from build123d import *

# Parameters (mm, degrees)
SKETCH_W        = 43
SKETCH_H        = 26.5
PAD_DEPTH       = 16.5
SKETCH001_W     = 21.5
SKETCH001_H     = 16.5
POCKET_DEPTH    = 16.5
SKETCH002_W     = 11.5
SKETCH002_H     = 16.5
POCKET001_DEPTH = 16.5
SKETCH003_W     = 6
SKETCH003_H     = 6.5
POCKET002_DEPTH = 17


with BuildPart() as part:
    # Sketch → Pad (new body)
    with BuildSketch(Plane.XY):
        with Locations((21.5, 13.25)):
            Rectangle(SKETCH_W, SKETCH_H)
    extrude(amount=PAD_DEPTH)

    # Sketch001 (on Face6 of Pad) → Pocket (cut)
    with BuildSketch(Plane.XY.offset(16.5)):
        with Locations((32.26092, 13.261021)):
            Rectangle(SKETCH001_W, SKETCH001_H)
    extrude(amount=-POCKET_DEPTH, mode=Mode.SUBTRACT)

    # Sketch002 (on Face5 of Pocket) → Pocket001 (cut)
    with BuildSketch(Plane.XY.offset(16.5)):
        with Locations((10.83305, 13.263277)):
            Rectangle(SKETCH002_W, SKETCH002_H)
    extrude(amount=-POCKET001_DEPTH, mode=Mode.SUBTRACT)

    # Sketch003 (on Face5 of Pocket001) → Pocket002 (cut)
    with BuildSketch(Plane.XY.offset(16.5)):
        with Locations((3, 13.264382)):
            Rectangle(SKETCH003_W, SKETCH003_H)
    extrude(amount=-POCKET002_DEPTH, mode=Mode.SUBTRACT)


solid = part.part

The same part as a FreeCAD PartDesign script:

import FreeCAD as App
import Part
import Sketcher

V = App.Vector

doc = App.newDocument("Part")
params = doc.addObject("Spreadsheet::Sheet", "Params")
for row, (alias, value) in enumerate([
    ("sketch1_width", "43 mm"),
    ("sketch1_height", "26.5 mm"),
    ("pad1_length", "16.5 mm"),
    ("sketch2_width", "21.5 mm"),
    ("sketch2_height", "16.5 mm"),
    ("pocket1_length", "16.5 mm"),
    ("sketch3_width", "11.5 mm"),
    ("sketch3_height", "16.5 mm"),
    ("pocket2_length", "16.5 mm"),
    ("sketch4_width", "6 mm"),
    ("sketch4_height", "6.5 mm"),
    ("pocket3_length", "17 mm"),
], start=1):
    params.set(f"A{row}", alias)
    params.set(f"B{row}", "=" + value)
    params.setAlias(f"B{row}", alias)

body = doc.addObject("PartDesign::Body", "Body")

# Sketch on XY plane
sketch1 = doc.addObject("Sketcher::SketchObject", "Sketch")
body.addObject(sketch1)
sketch1.AttachmentSupport = (doc.XY_Plane, [""])
sketch1.MapMode = "FlatFace"
sketch1.addGeometry(Part.LineSegment(V(0, 26.5, 0), V(0, 0, 0)), False)
sketch1.addGeometry(Part.LineSegment(V(0, 0, 0), V(43, 0, 0)), False)
sketch1.addGeometry(Part.LineSegment(V(43, 0, 0), V(43, 26.5, 0)), False)
sketch1.addGeometry(Part.LineSegment(V(43, 26.5, 0), V(0, 26.5, 0)), False)
sketch1.addConstraint(Sketcher.Constraint("Coincident", 0, 2, 1, 1))
sketch1.addConstraint(Sketcher.Constraint("Coincident", 1, 2, 2, 1))
sketch1.addConstraint(Sketcher.Constraint("Coincident", 2, 2, 3, 1))
sketch1.addConstraint(Sketcher.Constraint("Coincident", 3, 2, 0, 1))
sketch1.addConstraint(Sketcher.Constraint("Vertical", 0))
sketch1.addConstraint(Sketcher.Constraint("Horizontal", 1))
sketch1.addConstraint(Sketcher.Constraint("Vertical", 2))
sketch1.addConstraint(Sketcher.Constraint("Horizontal", 3))
sketch1.addConstraint(Sketcher.Constraint("Coincident", 0, 2, -1, 1))
sketch1.addConstraint(Sketcher.Constraint("DistanceX", 1, 1, 1, 2, 43.0))
sketch1.addConstraint(Sketcher.Constraint("DistanceY", 0, 2, 0, 1, 26.5))
sketch1.setExpression("Constraints[9]", "Params.sketch1_width")
sketch1.setExpression("Constraints[10]", "Params.sketch1_height")
pad1 = doc.addObject("PartDesign::Pad", "Pad")
body.addObject(pad1)
pad1.Profile = sketch1
pad1.setExpression("Length", "Params.pad1_length")

# Sketch on XY plane
sketch2 = doc.addObject("Sketcher::SketchObject", "Sketch001")
body.addObject(sketch2)
sketch2.AttachmentSupport = (doc.XY_Plane, [""])
sketch2.MapMode = "FlatFace"
sketch2.AttachmentOffset = App.Placement(V(0, 0, 16.5), App.Rotation())
sketch2.addGeometry(Part.LineSegment(V(21.51092, 21.511021, 0), V(21.51092, 5.011021, 0)), False)
sketch2.addGeometry(Part.LineSegment(V(21.51092, 5.011021, 0), V(43.01092, 5.011021, 0)), False)
sketch2.addGeometry(Part.LineSegment(V(43.01092, 5.011021, 0), V(43.01092, 21.511021, 0)), False)
sketch2.addGeometry(Part.LineSegment(V(43.01092, 21.511021, 0), V(21.51092, 21.511021, 0)), False)
sketch2.addConstraint(Sketcher.Constraint("Coincident", 0, 2, 1, 1))
sketch2.addConstraint(Sketcher.Constraint("Coincident", 1, 2, 2, 1))
sketch2.addConstraint(Sketcher.Constraint("Coincident", 2, 2, 3, 1))
sketch2.addConstraint(Sketcher.Constraint("Coincident", 3, 2, 0, 1))
sketch2.addConstraint(Sketcher.Constraint("Vertical", 0))
sketch2.addConstraint(Sketcher.Constraint("Horizontal", 1))
sketch2.addConstraint(Sketcher.Constraint("Vertical", 2))
sketch2.addConstraint(Sketcher.Constraint("Horizontal", 3))
sketch2.addConstraint(Sketcher.Constraint("DistanceX", 1, 1, 1, 2, 21.5))
sketch2.addConstraint(Sketcher.Constraint("DistanceY", 0, 2, 0, 1, 16.5))
sketch2.addConstraint(Sketcher.Constraint("DistanceX", -1, 1, 0, 2, 21.51092))
sketch2.addConstraint(Sketcher.Constraint("DistanceY", -1, 1, 0, 2, 5.011021))
sketch2.setExpression("Constraints[8]", "Params.sketch2_width")
sketch2.setExpression("Constraints[9]", "Params.sketch2_height")
pocket1 = doc.addObject("PartDesign::Pocket", "Pocket")
body.addObject(pocket1)
pocket1.Profile = sketch2
pocket1.setExpression("Length", "Params.pocket1_length")

# Sketch on XY plane
sketch3 = doc.addObject("Sketcher::SketchObject", "Sketch002")
body.addObject(sketch3)
sketch3.AttachmentSupport = (doc.XY_Plane, [""])
sketch3.MapMode = "FlatFace"
sketch3.AttachmentOffset = App.Placement(V(0, 0, 16.5), App.Rotation())
sketch3.addGeometry(Part.LineSegment(V(5.08305, 21.513277, 0), V(5.08305, 5.013277, 0)), False)
sketch3.addGeometry(Part.LineSegment(V(5.08305, 5.013277, 0), V(16.58305, 5.013277, 0)), False)
sketch3.addGeometry(Part.LineSegment(V(16.58305, 5.013277, 0), V(16.58305, 21.513277, 0)), False)
sketch3.addGeometry(Part.LineSegment(V(16.58305, 21.513277, 0), V(5.08305, 21.513277, 0)), False)
sketch3.addConstraint(Sketcher.Constraint("Coincident", 0, 2, 1, 1))
sketch3.addConstraint(Sketcher.Constraint("Coincident", 1, 2, 2, 1))
sketch3.addConstraint(Sketcher.Constraint("Coincident", 2, 2, 3, 1))
sketch3.addConstraint(Sketcher.Constraint("Coincident", 3, 2, 0, 1))
sketch3.addConstraint(Sketcher.Constraint("Vertical", 0))
sketch3.addConstraint(Sketcher.Constraint("Horizontal", 1))
sketch3.addConstraint(Sketcher.Constraint("Vertical", 2))
sketch3.addConstraint(Sketcher.Constraint("Horizontal", 3))
sketch3.addConstraint(Sketcher.Constraint("DistanceX", 1, 1, 1, 2, 11.5))
sketch3.addConstraint(Sketcher.Constraint("DistanceY", 0, 2, 0, 1, 16.5))
sketch3.addConstraint(Sketcher.Constraint("DistanceX", -1, 1, 0, 2, 5.08305))
sketch3.addConstraint(Sketcher.Constraint("DistanceY", -1, 1, 0, 2, 5.013277))
sketch3.setExpression("Constraints[8]", "Params.sketch3_width")
sketch3.setExpression("Constraints[9]", "Params.sketch3_height")
pocket2 = doc.addObject("PartDesign::Pocket", "Pocket001")
body.addObject(pocket2)
pocket2.Profile = sketch3
pocket2.setExpression("Length", "Params.pocket2_length")

# Sketch on XY plane
sketch4 = doc.addObject("Sketcher::SketchObject", "Sketch003")
body.addObject(sketch4)
sketch4.AttachmentSupport = (doc.XY_Plane, [""])
sketch4.MapMode = "FlatFace"
sketch4.AttachmentOffset = App.Placement(V(0, 0, 16.5), App.Rotation())
sketch4.addGeometry(Part.LineSegment(V(0, 16.514382, 0), V(0, 10.014382, 0)), False)
sketch4.addGeometry(Part.LineSegment(V(0, 10.014382, 0), V(6, 10.014382, 0)), False)
sketch4.addGeometry(Part.LineSegment(V(6, 10.014382, 0), V(6, 16.514382, 0)), False)
sketch4.addGeometry(Part.LineSegment(V(6, 16.514382, 0), V(0, 16.514382, 0)), False)
sketch4.addConstraint(Sketcher.Constraint("Coincident", 0, 2, 1, 1))
sketch4.addConstraint(Sketcher.Constraint("Coincident", 1, 2, 2, 1))
sketch4.addConstraint(Sketcher.Constraint("Coincident", 2, 2, 3, 1))
sketch4.addConstraint(Sketcher.Constraint("Coincident", 3, 2, 0, 1))
sketch4.addConstraint(Sketcher.Constraint("Vertical", 0))
sketch4.addConstraint(Sketcher.Constraint("Horizontal", 1))
sketch4.addConstraint(Sketcher.Constraint("Vertical", 2))
sketch4.addConstraint(Sketcher.Constraint("Horizontal", 3))
sketch4.addConstraint(Sketcher.Constraint("PointOnObject", 0, 2, -2))
sketch4.addConstraint(Sketcher.Constraint("DistanceX", 1, 1, 1, 2, 6.0))
sketch4.addConstraint(Sketcher.Constraint("DistanceY", 0, 2, 0, 1, 6.5))
sketch4.addConstraint(Sketcher.Constraint("DistanceY", -1, 1, 0, 2, 10.014382))
sketch4.setExpression("Constraints[9]", "Params.sketch4_width")
sketch4.setExpression("Constraints[10]", "Params.sketch4_height")
pocket3 = doc.addObject("PartDesign::Pocket", "Pocket002")
body.addObject(pocket3)
pocket3.Profile = sketch4
pocket3.setExpression("Length", "Params.pocket3_length")

doc.recompute()
